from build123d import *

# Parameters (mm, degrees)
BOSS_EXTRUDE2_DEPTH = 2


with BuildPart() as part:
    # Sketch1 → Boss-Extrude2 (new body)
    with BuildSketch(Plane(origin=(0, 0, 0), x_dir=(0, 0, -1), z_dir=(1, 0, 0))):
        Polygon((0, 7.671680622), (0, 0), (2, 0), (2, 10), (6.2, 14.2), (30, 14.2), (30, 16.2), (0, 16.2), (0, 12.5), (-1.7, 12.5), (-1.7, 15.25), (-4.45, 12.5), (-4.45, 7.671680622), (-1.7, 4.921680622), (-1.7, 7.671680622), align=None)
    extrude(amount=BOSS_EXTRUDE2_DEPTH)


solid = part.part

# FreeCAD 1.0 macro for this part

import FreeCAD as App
import Part
import Sketcher
from FreeCAD import Vector

doc = App.newDocument("Part")
body = doc.addObject("PartDesign::Body", "Body")

sketch1 = body.newObject("Sketcher::SketchObject", "Sketch")
sketch1.AttachmentSupport = (doc.getObject("YZ_Plane"), [""])
sketch1.MapMode = "FlatFace"
sketch1.addGeometry(Part.LineSegment(Vector(7.7, 0, 0), Vector(0, 0, 0)), False)
sketch1.addGeometry(Part.LineSegment(Vector(0, 0, 0), Vector(0, -2, 0)), False)
sketch1.addGeometry(Part.LineSegment(Vector(0, -2, 0), Vector(10, -2, 0)), False)
sketch1.addGeometry(Part.LineSegment(Vector(10, -2, 0), Vector(14.2, -6.2, 0)), False)
sketch1.addGeometry(Part.LineSegment(Vector(14.2, -6.2, 0), Vector(14.2, -30, 0)), False)
sketch1.addGeometry(Part.LineSegment(Vector(14.2, -30, 0), Vector(16.2, -30, 0)), False)
sketch1.addGeometry(Part.LineSegment(Vector(16.2, -30, 0), Vector(16.2, 0, 0)), False)
sketch1.addGeometry(Part.LineSegment(Vector(16.2, 0, 0), Vector(12.5, 0, 0)), False)
sketch1.addGeometry(Part.LineSegment(Vector(12.5, 0, 0), Vector(12.5, 1.7, 0)), False)
sketch1.addGeometry(Part.LineSegment(Vector(12.5, 1.7, 0), Vector(15.2, 1.7, 0)), False)
sketch1.addGeometry(Part.LineSegment(Vector(15.2, 1.7, 0), Vector(12.5, 4.5, 0)), False)
sketch1.addGeometry(Part.LineSegment(Vector(12.5, 4.5, 0), Vector(7.7, 4.5, 0)), False)
sketch1.addGeometry(Part.LineSegment(Vector(7.7, 4.5, 0), Vector(4.9, 1.7, 0)), False)
sketch1.addGeometry(Part.LineSegment(Vector(4.9, 1.7, 0), Vector(7.7, 1.7, 0)), False)
sketch1.addGeometry(Part.LineSegment(Vector(7.7, 1.7, 0), Vector(7.7, 0, 0)), False)
sketch1.addConstraint(Sketcher.Constraint("Coincident", 0, 2, 1, 1))
sketch1.addConstraint(Sketcher.Constraint("Coincident", 1, 2, 2, 1))
sketch1.addConstraint(Sketcher.Constraint("Coincident", 2, 2, 3, 1))
sketch1.addConstraint(Sketcher.Constraint("Coincident", 3, 2, 4, 1))
sketch1.addConstraint(Sketcher.Constraint("Coincident", 4, 2, 5, 1))
sketch1.addConstraint(Sketcher.Constraint("Coincident", 5, 2, 6, 1))
sketch1.addConstraint(Sketcher.Constraint("Coincident", 6, 2, 7, 1))
sketch1.addConstraint(Sketcher.Constraint("Coincident", 7, 2, 8, 1))
sketch1.addConstraint(Sketcher.Constraint("Coincident", 8, 2, 9, 1))
sketch1.addConstraint(Sketcher.Constraint("Coincident", 9, 2, 10, 1))
sketch1.addConstraint(Sketcher.Constraint("Coincident", 10, 2, 11, 1))
sketch1.addConstraint(Sketcher.Constraint("Coincident", 11, 2, 12, 1))
sketch1.addConstraint(Sketcher.Constraint("Coincident", 12, 2, 13, 1))
sketch1.addConstraint(Sketcher.Constraint("Coincident", 13, 2, 14, 1))
sketch1.addConstraint(Sketcher.Constraint("Coincident", 14, 2, 0, 1))
sketch1.addConstraint(Sketcher.Constraint("Horizontal", 0))
sketch1.addConstraint(Sketcher.Constraint("Vertical", 1))
sketch1.addConstraint(Sketcher.Constraint("Horizontal", 2))
sketch1.addConstraint(Sketcher.Constraint("Vertical", 4))
sketch1.addConstraint(Sketcher.Constraint("Horizontal", 5))
sketch1.addConstraint(Sketcher.Constraint("Vertical", 6))
sketch1.addConstraint(Sketcher.Constraint("Horizontal", 7))
sketch1.addConstraint(Sketcher.Constraint("Vertical", 8))
sketch1.addConstraint(Sketcher.Constraint("Horizontal", 9))
sketch1.addConstraint(Sketcher.Constraint("Horizontal", 11))
sketch1.addConstraint(Sketcher.Constraint("Horizontal", 13))
sketch1.addConstraint(Sketcher.Constraint("Vertical", 14))
sketch1.addConstraint(Sketcher.Constraint("Coincident", 0, 2, -1, 1))
sketch1.addConstraint(Sketcher.Constraint("PointOnObject", 6, 2, -1))
sketch1.addConstraint(Sketcher.Constraint("Parallel", 3, 10))
sketch1.addConstraint(Sketcher.Constraint("Perpendicular", 10, 12))
sketch1.addConstraint(Sketcher.Constraint("Horizontal", 9, 2, 12, 2))
sketch1.addConstraint(Sketcher.Constraint("Vertical", 8, 2, 10, 2))
sketch1.addConstraint(Sketcher.Constraint("Vertical", 11, 2, 13, 2))
sketch1.addConstraint(Sketcher.Constraint("Equal", 9, 13))
sketch1.addConstraint(Sketcher.Constraint("Equal", 5, 1))
sketch1.addConstraint(Sketcher.Constraint("DistanceX", 2, 1, 2, 2, 10.0))
sketch1.addConstraint(Sketcher.Constraint("DistanceX", 5, 1, 5, 2, 2.0))
sketch1.addConstraint(Sketcher.Constraint("DistanceY", 6, 1, 6, 2, 30.0))
sketch1.addConstraint(Sketcher.Constraint("DistanceX", 7, 2, 7, 1, 3.7))
sketch1.addConstraint(Sketcher.Constraint("DistanceY", 4, 2, 4, 1, 23.8))
sketch1.addConstraint(Sketcher.Constraint("DistanceY", 8, 1, 8, 2, 1.7))
sketch1.addConstraint(Sketcher.Constraint("DistanceX", 9, 1, 9, 2, 2.75))
sketch1.addConstraint(Sketcher.Constraint("DistanceX", 0, 2, 0, 1, 7.671681))
pad1 = body.newObject("PartDesign::Pad", "Pad")
pad1.Profile = sketch1
pad1.Length = 2

doc.recompute()
